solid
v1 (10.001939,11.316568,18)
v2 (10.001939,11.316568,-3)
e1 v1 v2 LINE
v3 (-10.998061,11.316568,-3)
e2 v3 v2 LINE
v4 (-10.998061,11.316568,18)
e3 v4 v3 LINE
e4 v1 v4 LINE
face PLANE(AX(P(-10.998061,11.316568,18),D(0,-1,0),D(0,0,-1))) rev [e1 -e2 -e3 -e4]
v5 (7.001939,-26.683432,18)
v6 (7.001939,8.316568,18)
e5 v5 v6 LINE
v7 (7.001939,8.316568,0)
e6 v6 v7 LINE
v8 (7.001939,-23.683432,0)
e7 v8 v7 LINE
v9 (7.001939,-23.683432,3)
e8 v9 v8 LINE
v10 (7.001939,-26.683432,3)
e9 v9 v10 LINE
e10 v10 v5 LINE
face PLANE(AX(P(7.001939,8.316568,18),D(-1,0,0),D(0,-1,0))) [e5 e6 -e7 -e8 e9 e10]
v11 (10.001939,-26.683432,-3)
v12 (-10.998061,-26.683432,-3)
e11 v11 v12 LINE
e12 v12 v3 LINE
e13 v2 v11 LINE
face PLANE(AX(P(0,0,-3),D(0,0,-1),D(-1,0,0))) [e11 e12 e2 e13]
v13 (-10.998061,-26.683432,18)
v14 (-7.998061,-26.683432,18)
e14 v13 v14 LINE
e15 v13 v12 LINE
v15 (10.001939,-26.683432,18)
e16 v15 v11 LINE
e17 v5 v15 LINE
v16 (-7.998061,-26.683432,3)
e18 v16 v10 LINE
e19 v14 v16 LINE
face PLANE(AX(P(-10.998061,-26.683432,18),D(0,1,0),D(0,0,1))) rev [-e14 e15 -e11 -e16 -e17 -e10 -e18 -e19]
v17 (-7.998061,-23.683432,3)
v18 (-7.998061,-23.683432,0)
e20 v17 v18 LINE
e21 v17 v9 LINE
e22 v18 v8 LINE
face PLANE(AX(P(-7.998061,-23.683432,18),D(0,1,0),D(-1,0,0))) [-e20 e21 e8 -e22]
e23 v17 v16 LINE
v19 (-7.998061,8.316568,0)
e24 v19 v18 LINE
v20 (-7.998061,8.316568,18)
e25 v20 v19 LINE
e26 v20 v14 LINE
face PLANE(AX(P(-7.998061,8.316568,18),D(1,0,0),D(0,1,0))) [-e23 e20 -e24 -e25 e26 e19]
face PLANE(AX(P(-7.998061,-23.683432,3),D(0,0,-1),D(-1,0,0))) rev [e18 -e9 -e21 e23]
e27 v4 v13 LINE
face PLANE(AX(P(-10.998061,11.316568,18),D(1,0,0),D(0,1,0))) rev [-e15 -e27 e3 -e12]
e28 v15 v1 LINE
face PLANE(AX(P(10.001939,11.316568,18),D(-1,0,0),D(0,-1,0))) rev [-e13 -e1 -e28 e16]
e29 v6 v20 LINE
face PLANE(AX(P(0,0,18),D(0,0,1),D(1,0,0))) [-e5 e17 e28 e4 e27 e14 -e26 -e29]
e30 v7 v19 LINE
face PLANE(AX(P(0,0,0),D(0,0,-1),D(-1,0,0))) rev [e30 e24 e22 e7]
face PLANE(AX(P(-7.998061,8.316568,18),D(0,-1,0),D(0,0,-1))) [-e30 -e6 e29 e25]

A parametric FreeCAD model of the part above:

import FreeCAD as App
import Part
import Sketcher

V = App.Vector

doc = App.newDocument("Part")
body = doc.addObject("PartDesign::Body", "Body")

# Sketch on XY plane
sketch1 = doc.addObject("Sketcher::SketchObject", "Sketch")
body.addObject(sketch1)
sketch1.AttachmentSupport = (doc.XY_Plane, [""])
sketch1.MapMode = "FlatFace"
sketch1.addGeometry(Part.LineSegment(V(-11, 11, 0), V(-11, -27, 0)), False)
sketch1.addGeometry(Part.LineSegment(V(-11, -27, 0), V(10, -27, 0)), False)
sketch1.addGeometry(Part.LineSegment(V(10, -27, 0), V(10, 11, 0)), False)
sketch1.addGeometry(Part.LineSegment(V(10, 11, 0), V(-11, 11, 0)), False)
sketch1.addGeometry(Part.LineSegment(V(7, -24, 0), V(-8, -24, 0)), False)
sketch1.addGeometry(Part.LineSegment(V(-8, -24, 0), V(-8, 8, 0)), False)
sketch1.addGeometry(Part.LineSegment(V(-8, 8, 0), V(7, 8, 0)), False)
sketch1.addGeometry(Part.LineSegment(V(7, 8, 0), V(7, -24, 0)), False)
sketch1.addConstraint(Sketcher.Constraint("Coincident", 0, 2, 1, 1))
sketch1.addConstraint(Sketcher.Constraint("Coincident", 1, 2, 2, 1))
sketch1.addConstraint(Sketcher.Constraint("Coincident", 2, 2, 3, 1))
sketch1.addConstraint(Sketcher.Constraint("Coincident", 3, 2, 0, 1))
sketch1.addConstraint(Sketcher.Constraint("Coincident", 4, 2, 5, 1))
sketch1.addConstraint(Sketcher.Constraint("Coincident", 5, 2, 6, 1))
sketch1.addConstraint(Sketcher.Constraint("Coincident", 6, 2, 7, 1))
sketch1.addConstraint(Sketcher.Constraint("Coincident", 7, 2, 4, 1))
sketch1.addConstraint(Sketcher.Constraint("Vertical", 0))
sketch1.addConstraint(Sketcher.Constraint("Horizontal", 1))
sketch1.addConstraint(Sketcher.Constraint("Vertical", 2))
sketch1.addConstraint(Sketcher.Constraint("Horizontal", 3))
sketch1.addConstraint(Sketcher.Constraint("Horizontal", 4))
sketch1.addConstraint(Sketcher.Constraint("Vertical", 5))
sketch1.addConstraint(Sketcher.Constraint("Horizontal", 6))
sketch1.addConstraint(Sketcher.Constraint("Vertical", 7))
sketch1.addConstraint(Sketcher.Constraint("DistanceX", 1, 1, 1, 2, 21.0))
sketch1.addConstraint(Sketcher.Constraint("DistanceX", 4, 2, 4, 1, 15.0))
sketch1.addConstraint(Sketcher.Constraint("DistanceY", 0, 2, 0, 1, 38.0))
sketch1.addConstraint(Sketcher.Constraint("DistanceY", 5, 1, 5, 2, 32.0))
sketch1.addConstraint(Sketcher.Constraint("DistanceX", 0, 2, 4, 2, 3.0))
sketch1.addConstraint(Sketcher.Constraint("DistanceY", 0, 2, 4, 2, 3.0))
sketch1.addConstraint(Sketcher.Constraint("DistanceX", 0, 2, -1, 1, 10.998061))
sketch1.addConstraint(Sketcher.Constraint("DistanceY", 0, 2, -1, 1, 26.683432))
pad1 = doc.addObject("PartDesign::Pad", "Pad")
body.addObject(pad1)
pad1.Profile = sketch1
pad1.Length = 18

# Sketch on XY plane
sketch2 = doc.addObject("Sketcher::SketchObject", "Sketch001")
body.addObject(sketch2)
sketch2.AttachmentSupport = (doc.XY_Plane, [""])
sketch2.MapMode = "FlatFace"
sketch2.addGeometry(Part.LineSegment(V(10, 11, 0), V(10, -27, 0)), False)
sketch2.addGeometry(Part.LineSegment(V(10, -27, 0), V(-11, -27, 0)), False)
sketch2.addGeometry(Part.LineSegment(V(-11, -27, 0), V(-11, 11, 0)), False)
sketch2.addGeometry(Part.LineSegment(V(-11, 11, 0), V(10, 11, 0)), False)
sketch2.addConstraint(Sketcher.Constraint("Coincident", 0, 2, 1, 1))
sketch2.addConstraint(Sketcher.Constraint("Coincident", 1, 2, 2, 1))
sketch2.addConstraint(Sketcher.Constraint("Coincident", 2, 2, 3, 1))
sketch2.addConstraint(Sketcher.Constraint("Coincident", 3, 2, 0, 1))
sketch2.addConstraint(Sketcher.Constraint("Vertical", 0))
sketch2.addConstraint(Sketcher.Constraint("Horizontal", 1))
sketch2.addConstraint(Sketcher.Constraint("Vertical", 2))
sketch2.addConstraint(Sketcher.Constraint("Horizontal", 3))
sketch2.addConstraint(Sketcher.Constraint("DistanceX", 1, 2, 1, 1, 21.0))
sketch2.addConstraint(Sketcher.Constraint("DistanceY", 0, 2, 0, 1, 38.0))
sketch2.addConstraint(Sketcher.Constraint("DistanceX", -1, 1, 0, 2, 10.001939))
sketch2.addConstraint(Sketcher.Constraint("DistanceY", 0, 2, -1, 1, 26.683432))
pad2 = doc.addObject("PartDesign::Pad", "Pad001")
body.addObject(pad2)
pad2.Profile = sketch2
pad2.Length = 3
pad2.Reversed = True

# Sketch on XZ plane
sketch3 = doc.addObject("Sketcher::SketchObject", "Sketch002")
body.addObject(sketch3)
sketch3.AttachmentSupport = (doc.XZ_Plane, [""])
sketch3.MapMode = "FlatFace"
sketch3.AttachmentOffset = App.Placement(V(0, 0, 26.683432), App.Rotation())
sketch3.addGeometry(Part.LineSegment(V(-8, 18, 0), V(-8, 3, 0)), False)
sketch3.addGeometry(Part.LineSegment(V(-8, 3, 0), V(7, 3, 0)), False)
sketch3.addGeometry(Part.LineSegment(V(7, 3, 0), V(7, 18, 0)), False)
sketch3.addGeometry(Part.LineSegment(V(7, 18, 0), V(-8, 18, 0)), False)
sketch3.addConstraint(Sketcher.Constraint("Coincident", 0, 2, 1, 1))
sketch3.addConstraint(Sketcher.Constraint("Coincident", 1, 2, 2, 1))
sketch3.addConstraint(Sketcher.Constraint("Coincident", 2, 2, 3, 1))
sketch3.addConstraint(Sketcher.Constraint("Coincident", 3, 2, 0, 1))
sketch3.addConstraint(Sketcher.Constraint("Vertical", 0))
sketch3.addConstraint(Sketcher.Constraint("Horizontal", 1))
sketch3.addConstraint(Sketcher.Constraint("Vertical", 2))
sketch3.addConstraint(Sketcher.Constraint("Horizontal", 3))
sketch3.addConstraint(Sketcher.Constraint("Equal", 3, 0))
sketch3.addConstraint(Sketcher.Constraint("DistanceX", 1, 1, 1, 2, 15.0))
sketch3.addConstraint(Sketcher.Constraint("DistanceY", -1, 1, 0, 2, 3.0))
sketch3.addConstraint(Sketcher.Constraint("DistanceX", 0, 2, -1, 1, 7.998061))
pocket1 = doc.addObject("PartDesign::Pocket", "Pocket")
body.addObject(pocket1)
pocket1.Profile = sketch3
pocket1.Length = 3

doc.recompute()
